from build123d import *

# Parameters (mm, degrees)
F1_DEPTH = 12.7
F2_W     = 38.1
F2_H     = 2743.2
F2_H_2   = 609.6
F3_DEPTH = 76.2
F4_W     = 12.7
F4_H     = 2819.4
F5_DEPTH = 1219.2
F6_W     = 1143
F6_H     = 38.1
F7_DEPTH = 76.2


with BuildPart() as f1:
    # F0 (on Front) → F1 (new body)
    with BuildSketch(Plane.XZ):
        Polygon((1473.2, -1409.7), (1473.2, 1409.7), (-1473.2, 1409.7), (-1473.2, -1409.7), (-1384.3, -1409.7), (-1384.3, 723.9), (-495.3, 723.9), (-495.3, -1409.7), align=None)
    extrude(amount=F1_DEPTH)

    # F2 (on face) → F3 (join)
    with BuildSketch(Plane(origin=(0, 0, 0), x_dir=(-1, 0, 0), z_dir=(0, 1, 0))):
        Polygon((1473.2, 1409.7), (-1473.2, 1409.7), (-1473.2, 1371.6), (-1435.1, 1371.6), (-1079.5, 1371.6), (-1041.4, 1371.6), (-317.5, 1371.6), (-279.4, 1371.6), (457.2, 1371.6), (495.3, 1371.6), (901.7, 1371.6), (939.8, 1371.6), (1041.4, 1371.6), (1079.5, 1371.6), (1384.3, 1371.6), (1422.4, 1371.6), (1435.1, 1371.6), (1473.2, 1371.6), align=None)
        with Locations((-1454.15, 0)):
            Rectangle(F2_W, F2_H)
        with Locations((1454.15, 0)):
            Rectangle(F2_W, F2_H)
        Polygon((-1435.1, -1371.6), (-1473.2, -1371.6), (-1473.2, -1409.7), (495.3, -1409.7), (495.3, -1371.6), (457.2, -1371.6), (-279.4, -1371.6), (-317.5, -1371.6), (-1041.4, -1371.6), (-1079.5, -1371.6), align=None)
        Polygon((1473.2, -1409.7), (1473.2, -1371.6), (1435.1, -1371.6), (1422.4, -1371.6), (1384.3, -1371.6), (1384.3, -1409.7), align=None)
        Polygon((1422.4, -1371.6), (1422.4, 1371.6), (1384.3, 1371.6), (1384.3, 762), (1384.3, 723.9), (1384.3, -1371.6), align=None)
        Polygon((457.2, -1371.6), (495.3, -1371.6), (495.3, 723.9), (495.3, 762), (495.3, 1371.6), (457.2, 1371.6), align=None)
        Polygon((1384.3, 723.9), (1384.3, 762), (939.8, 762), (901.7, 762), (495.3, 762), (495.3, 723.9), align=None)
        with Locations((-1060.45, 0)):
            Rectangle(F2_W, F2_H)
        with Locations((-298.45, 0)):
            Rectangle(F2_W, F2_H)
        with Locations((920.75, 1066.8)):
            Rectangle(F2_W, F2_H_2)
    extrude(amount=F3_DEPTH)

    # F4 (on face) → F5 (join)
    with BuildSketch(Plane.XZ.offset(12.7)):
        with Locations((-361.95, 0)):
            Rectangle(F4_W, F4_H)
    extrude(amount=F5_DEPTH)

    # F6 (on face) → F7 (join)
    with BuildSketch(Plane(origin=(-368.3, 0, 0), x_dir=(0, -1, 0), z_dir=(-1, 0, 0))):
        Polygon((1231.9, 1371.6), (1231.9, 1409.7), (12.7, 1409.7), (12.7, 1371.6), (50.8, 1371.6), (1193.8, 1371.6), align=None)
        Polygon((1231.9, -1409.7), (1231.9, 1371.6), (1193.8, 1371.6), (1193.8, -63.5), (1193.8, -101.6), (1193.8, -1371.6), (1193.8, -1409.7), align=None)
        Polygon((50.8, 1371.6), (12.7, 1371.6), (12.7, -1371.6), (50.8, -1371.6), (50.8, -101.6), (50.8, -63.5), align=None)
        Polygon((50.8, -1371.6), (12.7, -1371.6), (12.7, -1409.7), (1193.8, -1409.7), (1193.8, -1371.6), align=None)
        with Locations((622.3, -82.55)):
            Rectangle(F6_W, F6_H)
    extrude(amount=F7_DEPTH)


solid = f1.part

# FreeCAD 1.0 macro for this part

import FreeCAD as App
import Part
import Sketcher
from FreeCAD import Vector
Q = App.Units.Quantity


def add_polygon(sketch, points):
    """Adds a closed chain of lines whose ends are joined by coincident constraints."""
    first, n = sketch.GeometryCount, len(points)
    for a, b in zip(points, points[1:] + points[:1]):
        sketch.addGeometry(Part.LineSegment(App.Vector(*a, 0), App.Vector(*b, 0)), False)
    for i in range(n):
        sketch.addConstraint(Sketcher.Constraint("Coincident", first + i, 2, first + (i + 1) % n, 1))

doc = App.newDocument("Part")
body = doc.addObject("PartDesign::Body", "Body")

# Sketch on XZ plane
sketch1 = doc.addObject("Sketcher::SketchObject", "Sketch")
body.addObject(sketch1)
sketch1.AttachmentSupport = (doc.XZ_Plane, [""])
sketch1.MapMode = "FlatFace"
add_polygon(sketch1, [(1473, -1410), (1473, 1410), (-1473, 1410), (-1473, -1410), (-1384, -1410), (-1384, 724), (-495, 724), (-495, -1410)])  # lines 0-7
sketch1.addConstraint([
    Sketcher.Constraint("Vertical", 0),
    Sketcher.Constraint("Horizontal", 1),
    Sketcher.Constraint("Vertical", 2),
    Sketcher.Constraint("Horizontal", 3),
    Sketcher.Constraint("Vertical", 4),
    Sketcher.Constraint("Horizontal", 5),
    Sketcher.Constraint("Vertical", 6),
    Sketcher.Constraint("Horizontal", 7),
    Sketcher.Constraint("Symmetric", 0, 2, 2, 2, -1, 1),
    Sketcher.Constraint("Horizontal", 3, 2, 6, 2),
    Sketcher.Constraint("DistanceX", 1, 2, 1, 1, Q("116 in")),
    Sketcher.Constraint("DistanceX", 5, 1, 5, 2, Q("35 in")),
    Sketcher.Constraint("DistanceY", 0, 1, 0, 2, Q("111 in")),
    Sketcher.Constraint("DistanceY", 4, 1, 4, 2, Q("84 in")),
    Sketcher.Constraint("DistanceX", 3, 1, 3, 2, Q("3.5 in")),
])
pad1 = doc.addObject("PartDesign::Pad", "Pad")
body.addObject(pad1)
pad1.Profile = sketch1
pad1.Length = Q("0.5 in")

# Sketch on XZ plane
sketch2 = doc.addObject("Sketcher::SketchObject", "Sketch001")
body.addObject(sketch2)
sketch2.AttachmentSupport = (doc.XZ_Plane, [""])
sketch2.MapMode = "FlatFace"
add_polygon(sketch2, [(-1473, 1410), (1473, 1410), (1473, -1410), (-495, -1410), (-495, 724), (-1384, 724), (-1384, -1410), (-1473, -1410)])  # lines 0-7
add_polygon(sketch2, [(-495, 762), (-495, 1372), (-902, 1372), (-902, 762)])  # lines 8-11
add_polygon(sketch2, [(-940, 1372), (-1384, 1372), (-1384, 762), (-940, 762)])  # lines 12-15
add_polygon(sketch2, [(-457, -1372), (279, -1372), (279, 1372), (-457, 1372)])  # lines 16-19
add_polygon(sketch2, [(318, -1372), (1041, -1372), (1041, 1372), (318, 1372)])  # lines 20-23
add_polygon(sketch2, [(1080, -1372), (1435, -1372), (1435, 1372), (1080, 1372)])  # lines 24-27
add_polygon(sketch2, [(-1422, 1372), (-1435, 1372), (-1435, -1372), (-1422, -1372)])  # lines 28-31
sketch2.addConstraint([
    Sketcher.Constraint("Horizontal", 0),
    Sketcher.Constraint("Vertical", 1),
    Sketcher.Constraint("Horizontal", 2),
    Sketcher.Constraint("Vertical", 3),
    Sketcher.Constraint("Horizontal", 4),
    Sketcher.Constraint("Vertical", 5),
    Sketcher.Constraint("Horizontal", 6),
    Sketcher.Constraint("Vertical", 7),
    Sketcher.Constraint("Vertical", 8),
    Sketcher.Constraint("Horizontal", 9),
    Sketcher.Constraint("Vertical", 10),
    Sketcher.Constraint("Horizontal", 11),
    Sketcher.Constraint("Horizontal", 12),
    Sketcher.Constraint("Vertical", 13),
    Sketcher.Constraint("Horizontal", 14),
    Sketcher.Constraint("Vertical", 15),
    Sketcher.Constraint("Horizontal", 16),
    Sketcher.Constraint("Vertical", 17),
    Sketcher.Constraint("Horizontal", 18),
    Sketcher.Constraint("Vertical", 19),
    Sketcher.Constraint("Horizontal", 20),
    Sketcher.Constraint("Vertical", 21),
    Sketcher.Constraint("Horizontal", 22),
    Sketcher.Constraint("Vertical", 23),
    Sketcher.Constraint("Horizontal", 24),
    Sketcher.Constraint("Vertical", 25),
    Sketcher.Constraint("Horizontal", 26),
    Sketcher.Constraint("Vertical", 27),
    Sketcher.Constraint("Horizontal", 28),
    Sketcher.Constraint("Vertical", 29),
    Sketcher.Constraint("Horizontal", 30),
    Sketcher.Constraint("Vertical", 31),
    Sketcher.Constraint("Symmetric", 0, 2, 6, 2, -1, 1),
    Sketcher.Constraint("Symmetric", 24, 2, 28, 2, -1, 1),
    Sketcher.Constraint("Horizontal", 2, 2, 5, 2),
    Sketcher.Constraint("Horizontal", 9, 2, 12, 2),
    Sketcher.Constraint("Horizontal", 11, 2, 13, 2),
    Sketcher.Constraint("Horizontal", 15, 2, 17, 2),
    Sketcher.Constraint("Horizontal", 19, 2, 20, 2),
    Sketcher.Constraint("Horizontal", 18, 2, 21, 2),
    Sketcher.Constraint("Horizontal", 23, 2, 24, 2),
    Sketcher.Constraint("Horizontal", 22, 2, 25, 2),
    Sketcher.Constraint("Horizontal", 26, 2, 28, 2),
    Sketcher.Constraint("Horizontal", 27, 2, 29, 2),
    Sketcher.Constraint("Vertical", 3, 2, 8, 2),
    Sketcher.Constraint("Vertical", 5, 2, 12, 2),
    Sketcher.Constraint("DistanceX", 0, 1, 0, 2, Q("116 in")),
    Sketcher.Constraint("DistanceX", 4, 2, 4, 1, Q("35 in")),
    Sketcher.Constraint("DistanceX", 9, 2, 9, 1, Q("16 in")),
    Sketcher.Constraint("DistanceX", 16, 1, 16, 2, Q("29 in")),
    Sketcher.Constraint("DistanceX", 24, 1, 24, 2, Q("14 in")),
    Sketcher.Constraint("DistanceY", 1, 2, 1, 1, Q("111 in")),
    Sketcher.Constraint("DistanceY", 3, 1, 3, 2, Q("84 in")),
    Sketcher.Constraint("DistanceY", 8, 1, 8, 2, Q("24 in")),
    Sketcher.Constraint("DistanceY", 17, 1, 17, 2, Q("108 in")),
    Sketcher.Constraint("DistanceX", 2, 2, 2, 1, Q("77.5 in")),
    Sketcher.Constraint("DistanceX", 12, 2, 12, 1, Q("17.5 in")),
    Sketcher.Constraint("DistanceX", 20, 1, 20, 2, Q("28.5 in")),
    Sketcher.Constraint("DistanceX", 28, 2, 28, 1, Q("0.5 in")),
    Sketcher.Constraint("DistanceX", -1, 1, 16, 2, Q("11 in")),
    Sketcher.Constraint("DistanceX", -1, 1, 20, 2, Q("41 in")),
    Sketcher.Constraint("DistanceX", 30, 2, -1, 1, Q("56 in")),
])
pad2 = doc.addObject("PartDesign::Pad", "Pad001")
body.addObject(pad2)
pad2.Profile = sketch2
pad2.Length = Q("3 in")
pad2.Reversed = True

# Sketch on XZ plane
sketch3 = doc.addObject("Sketcher::SketchObject", "Sketch002")
body.addObject(sketch3)
sketch3.AttachmentSupport = (doc.XZ_Plane, [""])
sketch3.MapMode = "FlatFace"
sketch3.AttachmentOffset = App.Placement(Vector(0, 0, 0.5 * 25.4), App.Rotation())
add_polygon(sketch3, [(-368, 1410), (-368, -1410), (-356, -1410), (-356, 1410)])  # lines 0-3
sketch3.addConstraint([
    Sketcher.Constraint("Vertical", 0),
    Sketcher.Constraint("Horizontal", 1),
    Sketcher.Constraint("Vertical", 2),
    Sketcher.Constraint("Horizontal", 3),
    Sketcher.Constraint("DistanceY", 0, 2, 0, 1, Q("111 in")),
    Sketcher.Constraint("DistanceX", 1, 1, 1, 2, Q("0.5 in")),
    Sketcher.Constraint("DistanceX", 1, 2, -1, 1, Q("14 in")),
    Sketcher.Constraint("DistanceY", 0, 2, -1, 1, Q("55.5 in")),
])
pad3 = doc.addObject("PartDesign::Pad", "Pad002")
body.addObject(pad3)
pad3.Profile = sketch3
pad3.Length = Q("48 in")

# Sketch on YZ plane
sketch4 = doc.addObject("Sketcher::SketchObject", "Sketch003")
body.addObject(sketch4)
sketch4.AttachmentSupport = (doc.YZ_Plane, [""])
sketch4.MapMode = "FlatFace"
sketch4.AttachmentOffset = App.Placement(Vector(0, 0, -14.5 * 25.4), App.Rotation())
add_polygon(sketch4, [(-1232, 1410), (-13, 1410), (-13, -1410), (-1232, -1410)])  # lines 0-3
add_polygon(sketch4, [(-51, -1372), (-51, -102), (-1194, -102), (-1194, -1372)])  # lines 4-7
add_polygon(sketch4, [(-51, -64), (-51, 1372), (-1194, 1372), (-1194, -64)])  # lines 8-11
sketch4.addConstraint([
    Sketcher.Constraint("Horizontal", 0),
    Sketcher.Constraint("Vertical", 1),
    Sketcher.Constraint("Horizontal", 2),
    Sketcher.Constraint("Vertical", 3),
    Sketcher.Constraint("Vertical", 4),
    Sketcher.Constraint("Horizontal", 5),
    Sketcher.Constraint("Vertical", 6),
    Sketcher.Constraint("Horizontal", 7),
    Sketcher.Constraint("Vertical", 8),
    Sketcher.Constraint("Horizontal", 9),
    Sketcher.Constraint("Vertical", 10),
    Sketcher.Constraint("Horizontal", 11),
    Sketcher.Constraint("Symmetric", 7, 2, 8, 2, -1),
    Sketcher.Constraint("Vertical", 6, 2, 9, 2),
    Sketcher.Constraint("DistanceX", 0, 1, 0, 2, Q("48 in")),
    Sketcher.Constraint("DistanceX", 5, 2, 5, 1, Q("45 in")),
    Sketcher.Constraint("DistanceY", 1, 2, 1, 1, Q("111 in")),
    Sketcher.Constraint("DistanceY", 4, 1, 4, 2, Q("50 in")),
    Sketcher.Constraint("DistanceY", 8, 1, 8, 2, Q("56.5 in")),
    Sketcher.Constraint("DistanceX", 4, 2, -1, 1, Q("2 in")),
    Sketcher.Constraint("DistanceY", 4, 2, -1, 1, Q("4 in")),
    Sketcher.Constraint("DistanceY", 2, 2, 10, 2, Q("53 in")),
    Sketcher.Constraint("DistanceX", 0, 2, -1, 1, Q("0.5 in")),
])
pad4 = doc.addObject("PartDesign::Pad", "Pad003")
body.addObject(pad4)
pad4.Profile = sketch4
pad4.Length = Q("3 in")
pad4.Reversed = True

doc.recompute()
